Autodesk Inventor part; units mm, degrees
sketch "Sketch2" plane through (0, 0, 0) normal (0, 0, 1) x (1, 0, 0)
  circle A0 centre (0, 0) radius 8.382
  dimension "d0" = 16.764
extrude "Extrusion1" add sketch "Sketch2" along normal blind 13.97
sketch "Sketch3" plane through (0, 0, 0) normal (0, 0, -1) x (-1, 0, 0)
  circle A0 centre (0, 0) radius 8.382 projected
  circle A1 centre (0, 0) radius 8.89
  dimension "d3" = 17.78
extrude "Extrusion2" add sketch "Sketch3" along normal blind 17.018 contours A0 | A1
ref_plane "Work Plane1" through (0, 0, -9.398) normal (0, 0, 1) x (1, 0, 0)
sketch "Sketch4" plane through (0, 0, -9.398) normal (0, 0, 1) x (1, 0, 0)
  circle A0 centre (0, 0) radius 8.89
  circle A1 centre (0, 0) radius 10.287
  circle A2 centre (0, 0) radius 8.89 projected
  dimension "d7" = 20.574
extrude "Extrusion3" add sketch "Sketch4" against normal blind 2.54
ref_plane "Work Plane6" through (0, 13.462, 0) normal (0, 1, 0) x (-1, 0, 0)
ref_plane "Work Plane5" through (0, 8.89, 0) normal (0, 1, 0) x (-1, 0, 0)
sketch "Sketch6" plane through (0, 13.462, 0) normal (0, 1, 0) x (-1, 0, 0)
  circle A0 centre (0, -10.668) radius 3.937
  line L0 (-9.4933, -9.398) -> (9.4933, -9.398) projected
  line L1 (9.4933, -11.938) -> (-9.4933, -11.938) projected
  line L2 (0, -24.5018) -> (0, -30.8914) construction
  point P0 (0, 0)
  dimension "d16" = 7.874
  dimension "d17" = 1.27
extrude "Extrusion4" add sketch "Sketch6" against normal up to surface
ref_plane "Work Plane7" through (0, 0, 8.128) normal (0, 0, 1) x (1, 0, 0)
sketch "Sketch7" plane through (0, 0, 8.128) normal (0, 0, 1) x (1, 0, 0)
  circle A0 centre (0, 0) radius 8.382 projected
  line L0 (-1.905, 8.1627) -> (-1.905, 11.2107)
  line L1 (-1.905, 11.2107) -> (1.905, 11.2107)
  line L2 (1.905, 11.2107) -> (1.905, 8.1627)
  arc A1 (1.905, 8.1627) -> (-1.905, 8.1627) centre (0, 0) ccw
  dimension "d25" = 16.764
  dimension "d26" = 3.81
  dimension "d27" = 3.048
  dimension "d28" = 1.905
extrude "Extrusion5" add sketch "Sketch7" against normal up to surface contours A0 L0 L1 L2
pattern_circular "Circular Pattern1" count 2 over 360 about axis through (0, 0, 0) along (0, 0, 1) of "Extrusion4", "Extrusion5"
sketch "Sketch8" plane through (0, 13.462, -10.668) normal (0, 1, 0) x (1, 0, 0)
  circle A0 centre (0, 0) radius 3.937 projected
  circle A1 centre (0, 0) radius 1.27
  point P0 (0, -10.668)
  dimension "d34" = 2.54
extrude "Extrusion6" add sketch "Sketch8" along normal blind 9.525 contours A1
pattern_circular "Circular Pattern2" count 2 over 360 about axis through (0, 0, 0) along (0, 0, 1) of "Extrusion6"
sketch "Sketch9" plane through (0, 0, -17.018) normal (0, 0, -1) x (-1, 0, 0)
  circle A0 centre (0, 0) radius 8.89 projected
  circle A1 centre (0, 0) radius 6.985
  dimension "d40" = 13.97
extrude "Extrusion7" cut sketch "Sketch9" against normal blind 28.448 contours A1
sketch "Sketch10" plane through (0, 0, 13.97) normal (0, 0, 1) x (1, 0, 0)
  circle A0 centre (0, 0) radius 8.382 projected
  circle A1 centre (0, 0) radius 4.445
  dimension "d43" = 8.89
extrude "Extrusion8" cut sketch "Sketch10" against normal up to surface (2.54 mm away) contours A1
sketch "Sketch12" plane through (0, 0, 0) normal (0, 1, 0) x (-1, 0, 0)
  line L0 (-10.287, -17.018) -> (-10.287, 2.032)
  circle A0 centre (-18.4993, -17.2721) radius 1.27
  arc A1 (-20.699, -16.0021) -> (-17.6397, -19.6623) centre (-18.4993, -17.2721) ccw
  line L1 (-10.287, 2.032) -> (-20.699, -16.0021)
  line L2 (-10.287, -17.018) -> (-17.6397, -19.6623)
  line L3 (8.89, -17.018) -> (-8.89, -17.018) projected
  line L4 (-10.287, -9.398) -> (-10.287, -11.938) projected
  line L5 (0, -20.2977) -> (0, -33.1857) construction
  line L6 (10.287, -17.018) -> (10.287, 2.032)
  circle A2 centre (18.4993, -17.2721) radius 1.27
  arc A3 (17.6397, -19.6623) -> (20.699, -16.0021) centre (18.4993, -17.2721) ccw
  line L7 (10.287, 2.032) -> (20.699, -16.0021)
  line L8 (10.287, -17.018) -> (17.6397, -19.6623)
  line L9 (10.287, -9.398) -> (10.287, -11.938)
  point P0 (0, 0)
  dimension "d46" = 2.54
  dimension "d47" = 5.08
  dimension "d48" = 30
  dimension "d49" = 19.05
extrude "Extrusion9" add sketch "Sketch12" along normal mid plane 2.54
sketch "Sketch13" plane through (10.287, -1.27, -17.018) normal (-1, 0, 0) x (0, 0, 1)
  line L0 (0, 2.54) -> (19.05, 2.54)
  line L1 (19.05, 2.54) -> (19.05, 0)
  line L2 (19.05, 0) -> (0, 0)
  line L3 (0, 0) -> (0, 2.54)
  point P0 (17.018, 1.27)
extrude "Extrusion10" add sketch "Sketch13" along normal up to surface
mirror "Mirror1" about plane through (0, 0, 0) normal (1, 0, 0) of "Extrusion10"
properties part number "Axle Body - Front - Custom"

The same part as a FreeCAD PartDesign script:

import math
import FreeCAD as App
import Part
import Sketcher

V = App.Vector
Q = App.Units.Quantity


def add_polygon(sketch, points):
    """Adds a closed chain of lines whose ends are joined by coincident constraints."""
    first, n = sketch.GeometryCount, len(points)
    for a, b in zip(points, points[1:] + points[:1]):
        sketch.addGeometry(Part.LineSegment(App.Vector(*a, 0), App.Vector(*b, 0)), False)
    for i in range(n):
        sketch.addConstraint(Sketcher.Constraint("Coincident", first + i, 2, first + (i + 1) % n, 1))

doc = App.newDocument("Part")
body = doc.addObject("PartDesign::Body", "Body")
body.AllowCompound = True

sketch1 = body.newObject("Sketcher::SketchObject", "Sketch")
sketch1.AttachmentSupport = (doc.getObject("XY_Plane"), [""])
sketch1.MapMode = "FlatFace"
sketch1.addGeometry(Part.Circle(V(0, 0, 0), V(0, 0, 1), 8), False)
sketch1.addConstraint([
    Sketcher.Constraint("Coincident", 0, 3, -1, 1),
    Sketcher.Constraint("Diameter", 0, Q("0.66 in")),
])
pad1 = body.newObject("PartDesign::Pad", "Pad")
pad1.Profile = sketch1
pad1.Length = Q("0.55 in")

sketch2 = body.newObject("Sketcher::SketchObject", "Sketch001")
sketch2.AttachmentSupport = (doc.getObject("XY_Plane"), [""])
sketch2.MapMode = "FlatFace"
sketch2.addGeometry(Part.Circle(V(0, 0, 0), V(0, 0, 1), 9), False)
sketch2.addConstraint([
    Sketcher.Constraint("Coincident", 0, 3, -1, 1),
    Sketcher.Constraint("Diameter", 0, Q("0.7 in")),
])
pad2 = body.newObject("PartDesign::Pad", "Pad001")
pad2.Profile = sketch2
pad2.Length = Q("0.67 in")
pad2.Reversed = True

sketch3 = body.newObject("Sketcher::SketchObject", "Sketch002")
sketch3.AttachmentSupport = (doc.getObject("XY_Plane"), [""])
sketch3.MapMode = "FlatFace"
sketch3.AttachmentOffset = App.Placement(V(0, 0, -0.37 * 25.4), App.Rotation())
sketch3.addGeometry([
    Part.Circle(V(0, 0, 0), V(0, 0, 1), 10),
    Part.Circle(V(0, 0, 0), V(0, 0, 1), 9),
], False)
sketch3.addConstraint([
    Sketcher.Constraint("Coincident", 0, 3, -1, 1),
    Sketcher.Constraint("Coincident", 1, 3, -1, 1),
    Sketcher.Constraint("Diameter", 0, Q("0.81 in")),
    Sketcher.Constraint("Diameter", 1, Q("0.7 in")),
])
pad3 = body.newObject("PartDesign::Pad", "Pad002")
pad3.Profile = sketch3
pad3.Length = Q("0.1 in")
pad3.Reversed = True

sketch4 = body.newObject("Sketcher::SketchObject", "Sketch003")
sketch4.AttachmentSupport = (doc.getObject("XZ_Plane"), [""])
sketch4.MapMode = "FlatFace"
sketch4.AttachmentOffset = App.Placement(V(0, 0, -0.53 * 25.4), App.Rotation())
sketch4.addGeometry(Part.Circle(V(0, -10.7, 0), V(0, 0, 1), 3.9), False)
sketch4.addConstraint([
    Sketcher.Constraint("PointOnObject", 0, 3, -2),
    Sketcher.Constraint("Diameter", 0, Q("0.31 in")),
    Sketcher.Constraint("DistanceY", 0, 3, -1, 1, Q("0.42 in")),
])
pad4 = body.newObject("PartDesign::Pad", "Pad003")
pad4.Profile = sketch4
pad4.Type = "UpToFirst"

sketch5 = body.newObject("Sketcher::SketchObject", "Sketch004")
sketch5.AttachmentSupport = (doc.getObject("XY_Plane"), [""])
sketch5.MapMode = "FlatFace"
sketch5.AttachmentOffset = App.Placement(V(0, 0, 0.32 * 25.4), App.Rotation())
sketch5.addGeometry([
    Part.ArcOfCircle(Part.Circle(V(0, 0, 0), V(0, 0, 1), 8.4), math.radians(77), math.radians(103)),
    Part.LineSegment(V(1.9, 8.2, 0), V(1.9, 11.2, 0)),
    Part.LineSegment(V(1.9, 11.2, 0), V(-1.9, 11.2, 0)),
    Part.LineSegment(V(-1.9, 11.2, 0), V(-1.9, 8.2, 0)),
], False)
sketch5.addConstraint([
    Sketcher.Constraint("Coincident", 0, 1, 1, 1),
    Sketcher.Constraint("Coincident", 1, 2, 2, 1),
    Sketcher.Constraint("Coincident", 2, 2, 3, 1),
    Sketcher.Constraint("Coincident", 3, 2, 0, 2),
    Sketcher.Constraint("Vertical", 1),
    Sketcher.Constraint("Horizontal", 2),
    Sketcher.Constraint("Vertical", 3),
    Sketcher.Constraint("Coincident", 0, 3, -1, 1),
    Sketcher.Constraint("Horizontal", 0, 1, 3, 2),
    Sketcher.Constraint("Radius", 0, Q("0.33 in")),
    Sketcher.Constraint("DistanceX", 2, 2, 2, 1, Q("0.15 in")),
    Sketcher.Constraint("DistanceY", 1, 1, 1, 2, Q("0.12 in")),
])
pad5 = body.newObject("PartDesign::Pad", "Pad004")
pad5.Profile = sketch5
pad5.Type = "UpToFirst"
pad5.Reversed = True
doc.recompute()

polarpattern = body.newObject("PartDesign::PolarPattern", "PolarPattern")
polarpattern.Originals = [pad4, pad5]
polarpattern.Axis = (doc.getObject("Z_Axis"), [""])
polarpattern.Angle = 360
polarpattern.Occurrences = 2
body.Tip = polarpattern

sketch6 = body.newObject("Sketcher::SketchObject", "Sketch005")
sketch6.AttachmentSupport = (doc.getObject("XZ_Plane"), [""])
sketch6.MapMode = "FlatFace"
sketch6.AttachmentOffset = App.Placement(V(0, 0, -0.53 * 25.4), App.Rotation())
sketch6.addGeometry(Part.Circle(V(0, -10.7, 0), V(0, 0, 1), 1.3), False)
sketch6.addConstraint([
    Sketcher.Constraint("PointOnObject", 0, 3, -2),
    Sketcher.Constraint("Diameter", 0, Q("0.1 in")),
    Sketcher.Constraint("DistanceY", 0, 3, -1, 1, Q("0.42 in")),
])
pad6 = body.newObject("PartDesign::Pad", "Pad005")
pad6.Profile = sketch6
pad6.Length = Q("0.375 in")
pad6.Reversed = True
doc.recompute()

polarpattern2 = body.newObject("PartDesign::PolarPattern", "PolarPattern001")
polarpattern2.Originals = [pad6]
polarpattern2.Axis = (doc.getObject("Z_Axis"), [""])
polarpattern2.Angle = 360
polarpattern2.Occurrences = 2
body.Tip = polarpattern2

sketch7 = body.newObject("Sketcher::SketchObject", "Sketch006")
sketch7.AttachmentSupport = (doc.getObject("XY_Plane"), [""])
sketch7.MapMode = "FlatFace"
sketch7.AttachmentOffset = App.Placement(V(0, 0, -0.67 * 25.4), App.Rotation())
sketch7.addGeometry(Part.Circle(V(0, 0, 0), V(0, 0, 1), 7), False)
sketch7.addConstraint([
    Sketcher.Constraint("Coincident", 0, 3, -1, 1),
    Sketcher.Constraint("Diameter", 0, Q("0.55 in")),
])
pocket1 = body.newObject("PartDesign::Pocket", "Pocket")
pocket1.Profile = sketch7
pocket1.Length = Q("1.12 in")
pocket1.Reversed = True

sketch8 = body.newObject("Sketcher::SketchObject", "Sketch007")
sketch8.AttachmentSupport = (doc.getObject("XY_Plane"), [""])
sketch8.MapMode = "FlatFace"
sketch8.AttachmentOffset = App.Placement(V(0, 0, 0.55 * 25.4), App.Rotation())
sketch8.addGeometry(Part.Circle(V(0, 0, 0), V(0, 0, 1), 4.4), False)
sketch8.addConstraint([
    Sketcher.Constraint("Coincident", 0, 3, -1, 1),
    Sketcher.Constraint("Diameter", 0, Q("0.35 in")),
])
pocket2 = body.newObject("PartDesign::Pocket", "Pocket001")
pocket2.Profile = sketch8
pocket2.Length = Q("0.1 in")

sketch9 = body.newObject("Sketcher::SketchObject", "Sketch008")
sketch9.AttachmentSupport = (doc.getObject("XZ_Plane"), [""])
sketch9.MapMode = "FlatFace"
sketch9.addGeometry([
    Part.LineSegment(V(17.6, -19.7, 0), V(10.3, -17, 0)),
    Part.LineSegment(V(10.3, -17, 0), V(10.3, 2, 0)),
    Part.LineSegment(V(10.3, 2, 0), V(20.7, -16, 0)),
    Part.ArcOfCircle(Part.Circle(V(18.5, -17.3, 0), V(0, 0, 1), 2.5), math.radians(-110), math.radians(30)),
    Part.Circle(V(18.5, -17.3, 0), V(0, 0, 1), 1.3),
    Part.LineSegment(V(-10.3, 2, 0), V(-10.3, -17, 0)),
    Part.LineSegment(V(-10.3, -17, 0), V(-17.6, -19.7, 0)),
    Part.ArcOfCircle(Part.Circle(V(-18.5, -17.3, 0), V(0, 0, 1), 2.5), math.radians(150), math.radians(290)),
    Part.LineSegment(V(-20.7, -16, 0), V(-10.3, 2, 0)),
    Part.Circle(V(-18.5, -17.3, 0), V(0, 0, 1), 1.3),
], False)
sketch9.addConstraint([
    Sketcher.Constraint("Coincident", 0, 2, 1, 1),
    Sketcher.Constraint("Coincident", 1, 2, 2, 1),
    Sketcher.Constraint("Tangent", 2, 2, 3, 2),
    Sketcher.Constraint("Tangent", 3, 1, 0, 1),
    Sketcher.Constraint("Coincident", 5, 2, 6, 1),
    Sketcher.Constraint("Tangent", 6, 2, 7, 2),
    Sketcher.Constraint("Tangent", 7, 1, 8, 1),
    Sketcher.Constraint("Coincident", 8, 2, 5, 1),
    Sketcher.Constraint("Vertical", 1),
    Sketcher.Constraint("Vertical", 5),
    Sketcher.Constraint("Coincident", 4, 3, 3, 3),
    Sketcher.Constraint("Coincident", 9, 3, 7, 3),
    Sketcher.Constraint("Equal", 3, 7),
    Sketcher.Constraint("Equal", 4, 9),
    Sketcher.Constraint("Symmetric", 3, 3, 7, 3, -2),
    Sketcher.Constraint("Symmetric", 0, 2, 5, 2, -2),
    Sketcher.Constraint("Horizontal", 2, 2, 7, 1),
    Sketcher.Constraint("Diameter", 4, Q("0.1 in")),
    Sketcher.Constraint("Radius", 3, Q("0.1 in")),
    Sketcher.Constraint("DistanceY", 1, 1, 1, 2, Q("0.75 in")),
    Sketcher.Constraint("Angle", 2, Q("-60 deg")),
    Sketcher.Constraint("DistanceY", 3, 3, -1, 1, Q("0.68 in")),
    Sketcher.Constraint("DistanceY", 0, 2, -1, 1, Q("0.67 in")),
    Sketcher.Constraint("DistanceX", 5, 2, 0, 2, Q("0.81 in")),
])
pad7 = body.newObject("PartDesign::Pad", "Pad006")
pad7.Profile = sketch9
pad7.Length = Q("0.1 in")
pad7.Midplane = True

sketch10 = body.newObject("Sketcher::SketchObject", "Sketch009")
sketch10.AttachmentSupport = (doc.getObject("YZ_Plane"), [""])
sketch10.MapMode = "FlatFace"
sketch10.AttachmentOffset = App.Placement(V(0, 0, 0.405 * 25.4), App.Rotation())
add_polygon(sketch10, [(1.3, 2), (1.3, -17), (-1.3, -17), (-1.3, 2)])
sketch10.addConstraint([
    Sketcher.Constraint("Vertical", 0),
    Sketcher.Constraint("Horizontal", 1),
    Sketcher.Constraint("Vertical", 2),
    Sketcher.Constraint("Horizontal", 3),
    Sketcher.Constraint("DistanceX", 1, 2, 1, 1, Q("0.1 in")),
    Sketcher.Constraint("DistanceY", 0, 2, 0, 1, Q("0.75 in")),
    Sketcher.Constraint("DistanceX", -1, 1, 0, 2, Q("0.05 in")),
    Sketcher.Constraint("DistanceY", 0, 2, -1, 1, Q("0.67 in")),
])
pad8 = body.newObject("PartDesign::Pad", "Pad007")
pad8.Profile = sketch10
pad8.Type = "UpToFirst"
pad8.Reversed = True
doc.recompute()

mirrored = body.newObject("PartDesign::Mirrored", "Mirrored")
mirrored.Originals = [pad8]
mirrored.MirrorPlane = (doc.getObject("YZ_Plane"), [""])
body.Tip = mirrored

doc.recompute()
